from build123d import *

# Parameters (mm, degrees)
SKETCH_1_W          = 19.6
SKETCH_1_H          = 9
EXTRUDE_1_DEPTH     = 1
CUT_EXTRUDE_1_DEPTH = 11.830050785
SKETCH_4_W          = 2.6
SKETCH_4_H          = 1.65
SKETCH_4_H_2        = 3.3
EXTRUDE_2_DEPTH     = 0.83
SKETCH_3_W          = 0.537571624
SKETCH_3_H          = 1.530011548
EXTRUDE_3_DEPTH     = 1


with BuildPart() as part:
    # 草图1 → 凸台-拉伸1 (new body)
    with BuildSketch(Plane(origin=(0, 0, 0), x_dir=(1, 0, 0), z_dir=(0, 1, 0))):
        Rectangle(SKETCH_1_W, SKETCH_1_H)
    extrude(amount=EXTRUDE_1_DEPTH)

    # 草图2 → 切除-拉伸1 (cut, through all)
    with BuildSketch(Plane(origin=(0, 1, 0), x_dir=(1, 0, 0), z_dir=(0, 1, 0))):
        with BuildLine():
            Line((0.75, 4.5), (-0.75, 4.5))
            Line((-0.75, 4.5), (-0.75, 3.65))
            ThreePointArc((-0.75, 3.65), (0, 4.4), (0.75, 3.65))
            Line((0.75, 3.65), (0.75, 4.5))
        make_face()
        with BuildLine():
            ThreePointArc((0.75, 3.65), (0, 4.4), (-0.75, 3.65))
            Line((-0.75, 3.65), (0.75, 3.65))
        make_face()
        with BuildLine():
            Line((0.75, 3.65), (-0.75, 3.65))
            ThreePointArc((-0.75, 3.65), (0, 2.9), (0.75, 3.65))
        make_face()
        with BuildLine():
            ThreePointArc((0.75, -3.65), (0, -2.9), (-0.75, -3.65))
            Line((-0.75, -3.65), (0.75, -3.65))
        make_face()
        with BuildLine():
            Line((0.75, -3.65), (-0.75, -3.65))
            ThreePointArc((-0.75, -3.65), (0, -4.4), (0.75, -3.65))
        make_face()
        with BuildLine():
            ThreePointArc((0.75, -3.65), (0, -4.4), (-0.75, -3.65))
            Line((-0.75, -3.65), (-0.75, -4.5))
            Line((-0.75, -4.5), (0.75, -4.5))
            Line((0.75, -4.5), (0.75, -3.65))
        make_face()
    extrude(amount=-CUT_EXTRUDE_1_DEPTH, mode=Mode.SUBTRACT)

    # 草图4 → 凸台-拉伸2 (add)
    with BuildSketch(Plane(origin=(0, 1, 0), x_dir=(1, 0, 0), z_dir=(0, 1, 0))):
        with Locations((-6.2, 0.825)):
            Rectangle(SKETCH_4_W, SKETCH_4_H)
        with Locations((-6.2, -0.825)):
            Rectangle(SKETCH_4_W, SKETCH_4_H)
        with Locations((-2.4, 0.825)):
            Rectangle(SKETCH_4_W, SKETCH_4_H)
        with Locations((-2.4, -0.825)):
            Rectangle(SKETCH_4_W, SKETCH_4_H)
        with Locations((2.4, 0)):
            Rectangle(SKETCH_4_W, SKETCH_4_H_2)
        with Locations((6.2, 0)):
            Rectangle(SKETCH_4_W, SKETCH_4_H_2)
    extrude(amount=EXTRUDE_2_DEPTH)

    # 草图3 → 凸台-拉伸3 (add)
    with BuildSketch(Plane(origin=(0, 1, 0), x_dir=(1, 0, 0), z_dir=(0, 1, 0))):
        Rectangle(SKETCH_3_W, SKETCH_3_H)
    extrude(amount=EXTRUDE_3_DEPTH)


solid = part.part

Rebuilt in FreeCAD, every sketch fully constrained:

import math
import FreeCAD as App
import Part
import Sketcher


def add_polygon(sketch, points):
    """Adds a closed chain of lines whose ends are joined by coincident constraints."""
    first, n = sketch.GeometryCount, len(points)
    for a, b in zip(points, points[1:] + points[:1]):
        sketch.addGeometry(Part.LineSegment(App.Vector(*a, 0), App.Vector(*b, 0)), False)
    for i in range(n):
        sketch.addConstraint(Sketcher.Constraint("Coincident", first + i, 2, first + (i + 1) % n, 1))

doc = App.newDocument("Part")
body = doc.addObject("PartDesign::Body", "Body")

sketch1 = body.newObject("Sketcher::SketchObject", "Sketch")
sketch1.AttachmentSupport = (doc.getObject("XZ_Plane"), [""])
sketch1.MapMode = "FlatFace"
add_polygon(sketch1, [(-10, -4), (-10, 4), (10, 4), (10, -4)])
sketch1.addConstraint(Sketcher.Constraint("Vertical", 0))
sketch1.addConstraint(Sketcher.Constraint("Horizontal", 1))
sketch1.addConstraint(Sketcher.Constraint("Vertical", 2))
sketch1.addConstraint(Sketcher.Constraint("Horizontal", 3))
sketch1.addConstraint(Sketcher.Constraint("Symmetric", 0, 2, 2, 2, -1, 1))
sketch1.addConstraint(Sketcher.Constraint("DistanceY", 0, 1, 0, 2, 9.0))
sketch1.addConstraint(Sketcher.Constraint("DistanceX", 1, 1, 1, 2, 19.6))
pad1 = body.newObject("PartDesign::Pad", "Pad")
pad1.Profile = sketch1
pad1.Length = 1
pad1.Reversed = True

sketch2 = body.newObject("Sketcher::SketchObject", "Sketch001")
sketch2.AttachmentSupport = (doc.getObject("XZ_Plane"), [""])
sketch2.MapMode = "FlatFace"
sketch2.AttachmentOffset = App.Placement(App.Vector(0, 0, -1), App.Rotation())
sketch2.addGeometry(Part.LineSegment(App.Vector(-0.8, -4.5, 0), App.Vector(-0.8, -3.6, 0)), False)
sketch2.addGeometry(Part.ArcOfCircle(Part.Circle(App.Vector(0, -3.6, 0), App.Vector(0, 0, 1), 0.8), math.radians(0), math.radians(180)), False)
sketch2.addGeometry(Part.LineSegment(App.Vector(0.8, -3.6, 0), App.Vector(0.8, -4.5, 0)), False)
sketch2.addGeometry(Part.LineSegment(App.Vector(0.8, -4.5, 0), App.Vector(-0.8, -4.5, 0)), False)
sketch2.addGeometry(Part.ArcOfCircle(Part.Circle(App.Vector(0, 3.6, 0), App.Vector(0, 0, 1), 0.8), math.radians(180), math.radians(360)), False)
sketch2.addGeometry(Part.LineSegment(App.Vector(-0.8, 3.6, 0), App.Vector(-0.8, 4.5, 0)), False)
sketch2.addGeometry(Part.LineSegment(App.Vector(-0.8, 4.5, 0), App.Vector(0.8, 4.5, 0)), False)
sketch2.addGeometry(Part.LineSegment(App.Vector(0.8, 4.5, 0), App.Vector(0.8, 3.6, 0)), False)
sketch2.addConstraint(Sketcher.Constraint("Tangent", 0, 2, 1, 2))
sketch2.addConstraint(Sketcher.Constraint("Tangent", 1, 1, 2, 1))
sketch2.addConstraint(Sketcher.Constraint("Coincident", 2, 2, 3, 1))
sketch2.addConstraint(Sketcher.Constraint("Coincident", 3, 2, 0, 1))
sketch2.addConstraint(Sketcher.Constraint("Tangent", 4, 1, 5, 1))
sketch2.addConstraint(Sketcher.Constraint("Coincident", 5, 2, 6, 1))
sketch2.addConstraint(Sketcher.Constraint("Coincident", 6, 2, 7, 1))
sketch2.addConstraint(Sketcher.Constraint("Tangent", 7, 2, 4, 2))
sketch2.addConstraint(Sketcher.Constraint("Vertical", 0))
sketch2.addConstraint(Sketcher.Constraint("Vertical", 2))
sketch2.addConstraint(Sketcher.Constraint("Horizontal", 3))
sketch2.addConstraint(Sketcher.Constraint("Vertical", 5))
sketch2.addConstraint(Sketcher.Constraint("Horizontal", 6))
sketch2.addConstraint(Sketcher.Constraint("Vertical", 7))
sketch2.addConstraint(Sketcher.Constraint("Equal", 1, 4))
sketch2.addConstraint(Sketcher.Constraint("Symmetric", 1, 3, 4, 3, -1, 1))
sketch2.addConstraint(Sketcher.Constraint("Symmetric", 3, 2, 5, 2, -1))
sketch2.addConstraint(Sketcher.Constraint("Radius", 1, 0.75))
sketch2.addConstraint(Sketcher.Constraint("DistanceY", 0, 1, 0, 2, 0.85))
sketch2.addConstraint(Sketcher.Constraint("DistanceY", 2, 2, -1, 1, 4.5))
pocket1 = body.newObject("PartDesign::Pocket", "Pocket")
pocket1.Profile = sketch2
pocket1.Type = "ThroughAll"
pocket1.Reversed = True

sketch3 = body.newObject("Sketcher::SketchObject", "Sketch002")
sketch3.AttachmentSupport = (doc.getObject("XZ_Plane"), [""])
sketch3.MapMode = "FlatFace"
sketch3.AttachmentOffset = App.Placement(App.Vector(0, 0, -1), App.Rotation())
add_polygon(sketch3, [(-7.5, -1.6), (-7.5, 1.6), (-4.9, 1.6), (-4.9, -1.6)])
add_polygon(sketch3, [(-3.7, -1.6), (-3.7, 1.6), (-1.1, 1.6), (-1.1, -1.6)])
add_polygon(sketch3, [(1.1, -1.6), (1.1, 1.6), (3.7, 1.6), (3.7, -1.6)])
add_polygon(sketch3, [(4.9, -1.6), (4.9, 1.6), (7.5, 1.6), (7.5, -1.6)])
sketch3.addConstraint(Sketcher.Constraint("Vertical", 0))
sketch3.addConstraint(Sketcher.Constraint("Horizontal", 1))
sketch3.addConstraint(Sketcher.Constraint("Vertical", 2))
sketch3.addConstraint(Sketcher.Constraint("Horizontal", 3))
sketch3.addConstraint(Sketcher.Constraint("Vertical", 4))
sketch3.addConstraint(Sketcher.Constraint("Horizontal", 5))
sketch3.addConstraint(Sketcher.Constraint("Vertical", 6))
sketch3.addConstraint(Sketcher.Constraint("Horizontal", 7))
sketch3.addConstraint(Sketcher.Constraint("Vertical", 8))
sketch3.addConstraint(Sketcher.Constraint("Horizontal", 9))
sketch3.addConstraint(Sketcher.Constraint("Vertical", 10))
sketch3.addConstraint(Sketcher.Constraint("Horizontal", 11))
sketch3.addConstraint(Sketcher.Constraint("Vertical", 12))
sketch3.addConstraint(Sketcher.Constraint("Horizontal", 13))
sketch3.addConstraint(Sketcher.Constraint("Vertical", 14))
sketch3.addConstraint(Sketcher.Constraint("Horizontal", 15))
sketch3.addConstraint(Sketcher.Constraint("Symmetric", 6, 2, 8, 2, -1, 1))
sketch3.addConstraint(Sketcher.Constraint("Symmetric", 4, 2, 10, 2, -1, 1))
sketch3.addConstraint(Sketcher.Constraint("Symmetric", 2, 2, 12, 2, -1, 1))
sketch3.addConstraint(Sketcher.Constraint("Symmetric", 0, 2, 14, 2, -1, 1))
sketch3.addConstraint(Sketcher.Constraint("Horizontal", 1, 2, 4, 2))
sketch3.addConstraint(Sketcher.Constraint("Horizontal", 3, 2, 6, 2))
sketch3.addConstraint(Sketcher.Constraint("Horizontal", 5, 2, 8, 2))
sketch3.addConstraint(Sketcher.Constraint("Equal", 3, 5))
sketch3.addConstraint(Sketcher.Constraint("DistanceX", 1, 1, 1, 2, 2.6))
sketch3.addConstraint(Sketcher.Constraint("DistanceY", 0, 1, 0, 2, 3.3))
sketch3.addConstraint(Sketcher.Constraint("DistanceX", 1, 2, 8, 2, 6.0))
sketch3.addConstraint(Sketcher.Constraint("DistanceX", 0, 2, -1, 1, 7.5))
pad2 = body.newObject("PartDesign::Pad", "Pad001")
pad2.Profile = sketch3
pad2.Length = 0.83
pad2.Reversed = True

sketch4 = body.newObject("Sketcher::SketchObject", "Sketch003")
sketch4.AttachmentSupport = (doc.getObject("XZ_Plane"), [""])
sketch4.MapMode = "FlatFace"
sketch4.AttachmentOffset = App.Placement(App.Vector(0, 0, -1), App.Rotation())
add_polygon(sketch4, [(-0.3, -0.8), (-0.3, 0.8), (0.3, 0.8), (0.3, -0.8)])
sketch4.addConstraint(Sketcher.Constraint("Vertical", 0))
sketch4.addConstraint(Sketcher.Constraint("Horizontal", 1))
sketch4.addConstraint(Sketcher.Constraint("Vertical", 2))
sketch4.addConstraint(Sketcher.Constraint("Horizontal", 3))
sketch4.addConstraint(Sketcher.Constraint("Symmetric", 0, 2, 2, 2, -1, 1))
sketch4.addConstraint(Sketcher.Constraint("DistanceX", 1, 1, 1, 2, 0.537572))
sketch4.addConstraint(Sketcher.Constraint("DistanceY", 0, 1, 0, 2, 1.530012))
pad3 = body.newObject("PartDesign::Pad", "Pad002")
pad3.Profile = sketch4
pad3.Length = 1
pad3.Reversed = True

doc.recompute()
